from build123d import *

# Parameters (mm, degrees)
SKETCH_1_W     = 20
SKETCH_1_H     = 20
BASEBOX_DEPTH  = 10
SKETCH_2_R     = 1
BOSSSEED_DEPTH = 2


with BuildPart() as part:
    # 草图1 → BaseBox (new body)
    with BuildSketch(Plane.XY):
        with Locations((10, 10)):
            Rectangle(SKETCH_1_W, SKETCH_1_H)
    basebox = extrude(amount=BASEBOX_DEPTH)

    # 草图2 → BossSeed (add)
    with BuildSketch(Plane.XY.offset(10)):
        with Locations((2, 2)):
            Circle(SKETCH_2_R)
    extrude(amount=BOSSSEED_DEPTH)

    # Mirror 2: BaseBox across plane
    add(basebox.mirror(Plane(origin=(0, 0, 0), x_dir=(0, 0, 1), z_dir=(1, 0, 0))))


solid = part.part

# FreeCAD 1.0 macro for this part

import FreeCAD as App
import Part
import Sketcher

V = App.Vector
Q = App.Units.Quantity


def add_polygon(sketch, points):
    """Adds a closed chain of lines whose ends are joined by coincident constraints."""
    first, n = sketch.GeometryCount, len(points)
    for a, b in zip(points, points[1:] + points[:1]):
        sketch.addGeometry(Part.LineSegment(App.Vector(*a, 0), App.Vector(*b, 0)), False)
    for i in range(n):
        sketch.addConstraint(Sketcher.Constraint("Coincident", first + i, 2, first + (i + 1) % n, 1))

doc = App.newDocument("Part")
body = doc.addObject("PartDesign::Body", "Body")

sketch1 = body.newObject("Sketcher::SketchObject", "Sketch")
sketch1.AttachmentSupport = (doc.getObject("XY_Plane"), [""])
sketch1.MapMode = "FlatFace"
add_polygon(sketch1, [(0, 20), (0, 0), (20, 0), (20, 20)])
sketch1.addConstraint(Sketcher.Constraint("Vertical", 0))
sketch1.addConstraint(Sketcher.Constraint("Horizontal", 1))
sketch1.addConstraint(Sketcher.Constraint("Vertical", 2))
sketch1.addConstraint(Sketcher.Constraint("Horizontal", 3))
sketch1.addConstraint(Sketcher.Constraint("Coincident", 0, 2, -1, 1))
sketch1.addConstraint(Sketcher.Constraint("Equal", 3, 0))
sketch1.addConstraint(Sketcher.Constraint("DistanceX", 1, 1, 1, 2, Q("20 mm")))
pad1 = body.newObject("PartDesign::Pad", "Pad")
pad1.Profile = sketch1
pad1.Length = 10

sketch2 = body.newObject("Sketcher::SketchObject", "Sketch001")
sketch2.AttachmentSupport = (doc.getObject("XY_Plane"), [""])
sketch2.MapMode = "FlatFace"
sketch2.AttachmentOffset = App.Placement(V(0, 0, 10), App.Rotation())
sketch2.addGeometry(Part.Circle(V(2, 2, 0), V(0, 0, 1), 1), False)
sketch2.addConstraint(Sketcher.Constraint("Diameter", 0, Q("2 mm")))
sketch2.addConstraint(Sketcher.Constraint("DistanceX", -1, 1, 0, 3, Q("2 mm")))
sketch2.addConstraint(Sketcher.Constraint("DistanceY", -1, 1, 0, 3, Q("2 mm")))
pad2 = body.newObject("PartDesign::Pad", "Pad001")
pad2.Profile = sketch2
pad2.Length = 2
doc.recompute()

mirrored = body.newObject("PartDesign::Mirrored", "Mirrored")
mirrored.Originals = [pad1]
mirrored.MirrorPlane = (doc.getObject("YZ_Plane"), [""])
body.Tip = mirrored

doc.recompute()
